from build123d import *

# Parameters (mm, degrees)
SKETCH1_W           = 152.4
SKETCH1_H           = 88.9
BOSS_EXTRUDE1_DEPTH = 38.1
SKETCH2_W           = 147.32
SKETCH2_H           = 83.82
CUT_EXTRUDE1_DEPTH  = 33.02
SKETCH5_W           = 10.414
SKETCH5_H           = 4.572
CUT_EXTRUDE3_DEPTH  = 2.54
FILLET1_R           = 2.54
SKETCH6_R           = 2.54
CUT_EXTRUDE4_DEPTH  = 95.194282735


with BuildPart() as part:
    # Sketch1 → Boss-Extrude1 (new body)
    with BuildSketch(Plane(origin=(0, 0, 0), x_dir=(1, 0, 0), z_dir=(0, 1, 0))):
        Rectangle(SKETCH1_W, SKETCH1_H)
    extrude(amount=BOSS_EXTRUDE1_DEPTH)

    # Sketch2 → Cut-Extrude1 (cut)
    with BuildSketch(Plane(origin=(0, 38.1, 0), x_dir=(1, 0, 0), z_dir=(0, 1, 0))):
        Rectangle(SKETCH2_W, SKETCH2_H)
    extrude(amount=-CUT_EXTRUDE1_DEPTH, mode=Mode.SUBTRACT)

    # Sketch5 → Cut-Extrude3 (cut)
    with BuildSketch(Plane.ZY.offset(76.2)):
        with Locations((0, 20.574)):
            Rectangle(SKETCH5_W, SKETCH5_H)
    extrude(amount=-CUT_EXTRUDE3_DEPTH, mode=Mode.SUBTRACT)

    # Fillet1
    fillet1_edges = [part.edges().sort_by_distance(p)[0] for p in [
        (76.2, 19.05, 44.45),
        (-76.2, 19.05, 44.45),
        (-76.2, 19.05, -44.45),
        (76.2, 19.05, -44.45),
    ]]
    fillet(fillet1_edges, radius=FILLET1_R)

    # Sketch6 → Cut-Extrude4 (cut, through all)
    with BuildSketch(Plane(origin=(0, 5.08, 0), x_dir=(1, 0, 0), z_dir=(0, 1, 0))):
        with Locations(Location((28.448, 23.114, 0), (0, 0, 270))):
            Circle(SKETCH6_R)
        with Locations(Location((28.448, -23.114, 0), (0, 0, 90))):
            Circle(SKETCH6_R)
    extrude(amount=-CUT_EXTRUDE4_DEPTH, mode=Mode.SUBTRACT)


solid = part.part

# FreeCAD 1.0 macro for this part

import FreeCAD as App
import Part
import Sketcher
Q = App.Units.Quantity


def edges_at(feature, points):
    """Names of the edges that pass closest to the given points."""
    edges = feature.Shape.Edges
    near = lambda p: min(range(len(edges)), key=lambda i: edges[i].distToShape(Part.Vertex(*p))[0])
    return sorted({f"Edge{near(p) + 1}" for p in points})


def add_polygon(sketch, points):
    """Adds a closed chain of lines whose ends are joined by coincident constraints."""
    first, n = sketch.GeometryCount, len(points)
    for a, b in zip(points, points[1:] + points[:1]):
        sketch.addGeometry(Part.LineSegment(App.Vector(*a, 0), App.Vector(*b, 0)), False)
    for i in range(n):
        sketch.addConstraint(Sketcher.Constraint("Coincident", first + i, 2, first + (i + 1) % n, 1))

doc = App.newDocument("Part")
params = doc.addObject("Spreadsheet::Sheet", "Params")
for row, (alias, value) in enumerate([
    ("sketch1_width", "6 in"),
    ("sketch1_height", "3.5 in"),
    ("pad1_length", "1.5 in"),
    ("sketch2_width", "5.8 in"),
    ("sketch2_height", "3.3 in"),
    ("pocket1_length", "1.3 in"),
    ("sketch3_width", "0.18 in"),
    ("sketch3_height", "0.41 in"),
    ("pocket2_length", "0.1 in"),
    ("fillet_radius", "0.1 in"),
    ("sketch4_diameter", "0.2 in"),
], start=1):
    params.set(f"A{row}", alias)
    params.set(f"B{row}", "=" + value)
    params.setAlias(f"B{row}", alias)

body = doc.addObject("PartDesign::Body", "Body")

# Sketch on XZ plane
sketch1 = doc.addObject("Sketcher::SketchObject", "Sketch")
body.addObject(sketch1)
sketch1.AttachmentSupport = (doc.XZ_Plane, [""])
sketch1.MapMode = "FlatFace"
add_polygon(sketch1, [(-76, -44), (-76, 44), (76, 44), (76, -44)])  # lines 0-3
sketch1.addConstraint([
    Sketcher.Constraint("Vertical", 0),
    Sketcher.Constraint("Horizontal", 1),
    Sketcher.Constraint("Vertical", 2),
    Sketcher.Constraint("Horizontal", 3),
    Sketcher.Constraint("Symmetric", 0, 2, 2, 2, -1, 1),
    Sketcher.Constraint("DistanceX", 1, 1, 1, 2, Q("6 in")),
    Sketcher.Constraint("DistanceY", 0, 1, 0, 2, Q("3.5 in")),
])
sketch1.setExpression("Constraints[9]", "Params.sketch1_width")
sketch1.setExpression("Constraints[10]", "Params.sketch1_height")
pad1 = doc.addObject("PartDesign::Pad", "Pad")
body.addObject(pad1)
pad1.Profile = sketch1
pad1.setExpression("Length", "Params.pad1_length")
pad1.Reversed = True

# Sketch on XZ plane
sketch2 = doc.addObject("Sketcher::SketchObject", "Sketch001")
body.addObject(sketch2)
sketch2.AttachmentSupport = (doc.XZ_Plane, [""])
sketch2.MapMode = "FlatFace"
sketch2.AttachmentOffset = App.Placement(App.Vector(0, 0, -1.5 * 25.4), App.Rotation())
add_polygon(sketch2, [(-74, -42), (-74, 42), (74, 42), (74, -42)])  # lines 0-3
sketch2.addConstraint([
    Sketcher.Constraint("Vertical", 0),
    Sketcher.Constraint("Horizontal", 1),
    Sketcher.Constraint("Vertical", 2),
    Sketcher.Constraint("Horizontal", 3),
    Sketcher.Constraint("Symmetric", 0, 2, 2, 2, -1, 1),
    Sketcher.Constraint("DistanceX", 1, 1, 1, 2, Q("5.8 in")),
    Sketcher.Constraint("DistanceY", 0, 1, 0, 2, Q("3.3 in")),
])
sketch2.setExpression("Constraints[9]", "Params.sketch2_width")
sketch2.setExpression("Constraints[10]", "Params.sketch2_height")
pocket1 = doc.addObject("PartDesign::Pocket", "Pocket")
body.addObject(pocket1)
pocket1.Profile = sketch2
pocket1.setExpression("Length", "Params.pocket1_length")
pocket1.Reversed = True

# Sketch on YZ plane
sketch3 = doc.addObject("Sketcher::SketchObject", "Sketch002")
body.addObject(sketch3)
sketch3.AttachmentSupport = (doc.YZ_Plane, [""])
sketch3.MapMode = "FlatFace"
sketch3.AttachmentOffset = App.Placement(App.Vector(0, 0, -3 * 25.4), App.Rotation())
add_polygon(sketch3, [(22.9, -5.2), (18.3, -5.2), (18.3, 5.2), (22.9, 5.2)])  # lines 0-3
sketch3.addConstraint([
    Sketcher.Constraint("Horizontal", 0),
    Sketcher.Constraint("Vertical", 1),
    Sketcher.Constraint("Horizontal", 2),
    Sketcher.Constraint("Vertical", 3),
    Sketcher.Constraint("DistanceX", 0, 2, 0, 1, Q("0.18 in")),
    Sketcher.Constraint("DistanceY", 1, 1, 1, 2, Q("0.41 in")),
    Sketcher.Constraint("DistanceX", -1, 1, 2, 2, Q("0.9 in")),
    Sketcher.Constraint("DistanceY", 0, 2, -1, 1, Q("0.205 in")),
])
sketch3.setExpression("Constraints[8]", "Params.sketch3_width")
sketch3.setExpression("Constraints[9]", "Params.sketch3_height")
pocket2 = doc.addObject("PartDesign::Pocket", "Pocket001")
body.addObject(pocket2)
pocket2.Profile = sketch3
pocket2.setExpression("Length", "Params.pocket2_length")
pocket2.Reversed = True
doc.recompute()

fillet = doc.addObject("PartDesign::Fillet", "Fillet")
body.addObject(fillet)
fillet.Base = (pocket2, edges_at(pocket2, [
    (76.2, 19.05, 44.45),
    (-76.2, 19.05, 44.45),
    (-76.2, 19.05, -44.45),
    (76.2, 19.05, -44.45),
]))
fillet.setExpression("Radius", "Params.fillet_radius")

# Sketch on XZ plane
sketch4 = doc.addObject("Sketcher::SketchObject", "Sketch003")
body.addObject(sketch4)
sketch4.AttachmentSupport = (doc.XZ_Plane, [""])
sketch4.MapMode = "FlatFace"
sketch4.AttachmentOffset = App.Placement(App.Vector(0, 0, -0.2 * 25.4), App.Rotation())
sketch4.addGeometry([
    Part.Circle(App.Vector(28.4, -23.1, 0), App.Vector(0, 0, 1), 2.5),
    Part.Circle(App.Vector(28.4, 23.1, 0), App.Vector(0, 0, 1), 2.5),
], False)
sketch4.addConstraint([
    Sketcher.Constraint("Equal", 0, 1),
    Sketcher.Constraint("Symmetric", 0, 3, 1, 3, -1),
    Sketcher.Constraint("Diameter", 0, Q("0.2 in")),
    Sketcher.Constraint("DistanceX", -1, 1, 0, 3, Q("1.12 in")),
    Sketcher.Constraint("DistanceY", 0, 3, -1, 1, Q("0.91 in")),
])
sketch4.setExpression("Constraints[2]", "Params.sketch4_diameter")
pocket3 = doc.addObject("PartDesign::Pocket", "Pocket002")
body.addObject(pocket3)
pocket3.Profile = sketch4
pocket3.Type = "ThroughAll"
pocket3.Reversed = True

doc.recompute()
